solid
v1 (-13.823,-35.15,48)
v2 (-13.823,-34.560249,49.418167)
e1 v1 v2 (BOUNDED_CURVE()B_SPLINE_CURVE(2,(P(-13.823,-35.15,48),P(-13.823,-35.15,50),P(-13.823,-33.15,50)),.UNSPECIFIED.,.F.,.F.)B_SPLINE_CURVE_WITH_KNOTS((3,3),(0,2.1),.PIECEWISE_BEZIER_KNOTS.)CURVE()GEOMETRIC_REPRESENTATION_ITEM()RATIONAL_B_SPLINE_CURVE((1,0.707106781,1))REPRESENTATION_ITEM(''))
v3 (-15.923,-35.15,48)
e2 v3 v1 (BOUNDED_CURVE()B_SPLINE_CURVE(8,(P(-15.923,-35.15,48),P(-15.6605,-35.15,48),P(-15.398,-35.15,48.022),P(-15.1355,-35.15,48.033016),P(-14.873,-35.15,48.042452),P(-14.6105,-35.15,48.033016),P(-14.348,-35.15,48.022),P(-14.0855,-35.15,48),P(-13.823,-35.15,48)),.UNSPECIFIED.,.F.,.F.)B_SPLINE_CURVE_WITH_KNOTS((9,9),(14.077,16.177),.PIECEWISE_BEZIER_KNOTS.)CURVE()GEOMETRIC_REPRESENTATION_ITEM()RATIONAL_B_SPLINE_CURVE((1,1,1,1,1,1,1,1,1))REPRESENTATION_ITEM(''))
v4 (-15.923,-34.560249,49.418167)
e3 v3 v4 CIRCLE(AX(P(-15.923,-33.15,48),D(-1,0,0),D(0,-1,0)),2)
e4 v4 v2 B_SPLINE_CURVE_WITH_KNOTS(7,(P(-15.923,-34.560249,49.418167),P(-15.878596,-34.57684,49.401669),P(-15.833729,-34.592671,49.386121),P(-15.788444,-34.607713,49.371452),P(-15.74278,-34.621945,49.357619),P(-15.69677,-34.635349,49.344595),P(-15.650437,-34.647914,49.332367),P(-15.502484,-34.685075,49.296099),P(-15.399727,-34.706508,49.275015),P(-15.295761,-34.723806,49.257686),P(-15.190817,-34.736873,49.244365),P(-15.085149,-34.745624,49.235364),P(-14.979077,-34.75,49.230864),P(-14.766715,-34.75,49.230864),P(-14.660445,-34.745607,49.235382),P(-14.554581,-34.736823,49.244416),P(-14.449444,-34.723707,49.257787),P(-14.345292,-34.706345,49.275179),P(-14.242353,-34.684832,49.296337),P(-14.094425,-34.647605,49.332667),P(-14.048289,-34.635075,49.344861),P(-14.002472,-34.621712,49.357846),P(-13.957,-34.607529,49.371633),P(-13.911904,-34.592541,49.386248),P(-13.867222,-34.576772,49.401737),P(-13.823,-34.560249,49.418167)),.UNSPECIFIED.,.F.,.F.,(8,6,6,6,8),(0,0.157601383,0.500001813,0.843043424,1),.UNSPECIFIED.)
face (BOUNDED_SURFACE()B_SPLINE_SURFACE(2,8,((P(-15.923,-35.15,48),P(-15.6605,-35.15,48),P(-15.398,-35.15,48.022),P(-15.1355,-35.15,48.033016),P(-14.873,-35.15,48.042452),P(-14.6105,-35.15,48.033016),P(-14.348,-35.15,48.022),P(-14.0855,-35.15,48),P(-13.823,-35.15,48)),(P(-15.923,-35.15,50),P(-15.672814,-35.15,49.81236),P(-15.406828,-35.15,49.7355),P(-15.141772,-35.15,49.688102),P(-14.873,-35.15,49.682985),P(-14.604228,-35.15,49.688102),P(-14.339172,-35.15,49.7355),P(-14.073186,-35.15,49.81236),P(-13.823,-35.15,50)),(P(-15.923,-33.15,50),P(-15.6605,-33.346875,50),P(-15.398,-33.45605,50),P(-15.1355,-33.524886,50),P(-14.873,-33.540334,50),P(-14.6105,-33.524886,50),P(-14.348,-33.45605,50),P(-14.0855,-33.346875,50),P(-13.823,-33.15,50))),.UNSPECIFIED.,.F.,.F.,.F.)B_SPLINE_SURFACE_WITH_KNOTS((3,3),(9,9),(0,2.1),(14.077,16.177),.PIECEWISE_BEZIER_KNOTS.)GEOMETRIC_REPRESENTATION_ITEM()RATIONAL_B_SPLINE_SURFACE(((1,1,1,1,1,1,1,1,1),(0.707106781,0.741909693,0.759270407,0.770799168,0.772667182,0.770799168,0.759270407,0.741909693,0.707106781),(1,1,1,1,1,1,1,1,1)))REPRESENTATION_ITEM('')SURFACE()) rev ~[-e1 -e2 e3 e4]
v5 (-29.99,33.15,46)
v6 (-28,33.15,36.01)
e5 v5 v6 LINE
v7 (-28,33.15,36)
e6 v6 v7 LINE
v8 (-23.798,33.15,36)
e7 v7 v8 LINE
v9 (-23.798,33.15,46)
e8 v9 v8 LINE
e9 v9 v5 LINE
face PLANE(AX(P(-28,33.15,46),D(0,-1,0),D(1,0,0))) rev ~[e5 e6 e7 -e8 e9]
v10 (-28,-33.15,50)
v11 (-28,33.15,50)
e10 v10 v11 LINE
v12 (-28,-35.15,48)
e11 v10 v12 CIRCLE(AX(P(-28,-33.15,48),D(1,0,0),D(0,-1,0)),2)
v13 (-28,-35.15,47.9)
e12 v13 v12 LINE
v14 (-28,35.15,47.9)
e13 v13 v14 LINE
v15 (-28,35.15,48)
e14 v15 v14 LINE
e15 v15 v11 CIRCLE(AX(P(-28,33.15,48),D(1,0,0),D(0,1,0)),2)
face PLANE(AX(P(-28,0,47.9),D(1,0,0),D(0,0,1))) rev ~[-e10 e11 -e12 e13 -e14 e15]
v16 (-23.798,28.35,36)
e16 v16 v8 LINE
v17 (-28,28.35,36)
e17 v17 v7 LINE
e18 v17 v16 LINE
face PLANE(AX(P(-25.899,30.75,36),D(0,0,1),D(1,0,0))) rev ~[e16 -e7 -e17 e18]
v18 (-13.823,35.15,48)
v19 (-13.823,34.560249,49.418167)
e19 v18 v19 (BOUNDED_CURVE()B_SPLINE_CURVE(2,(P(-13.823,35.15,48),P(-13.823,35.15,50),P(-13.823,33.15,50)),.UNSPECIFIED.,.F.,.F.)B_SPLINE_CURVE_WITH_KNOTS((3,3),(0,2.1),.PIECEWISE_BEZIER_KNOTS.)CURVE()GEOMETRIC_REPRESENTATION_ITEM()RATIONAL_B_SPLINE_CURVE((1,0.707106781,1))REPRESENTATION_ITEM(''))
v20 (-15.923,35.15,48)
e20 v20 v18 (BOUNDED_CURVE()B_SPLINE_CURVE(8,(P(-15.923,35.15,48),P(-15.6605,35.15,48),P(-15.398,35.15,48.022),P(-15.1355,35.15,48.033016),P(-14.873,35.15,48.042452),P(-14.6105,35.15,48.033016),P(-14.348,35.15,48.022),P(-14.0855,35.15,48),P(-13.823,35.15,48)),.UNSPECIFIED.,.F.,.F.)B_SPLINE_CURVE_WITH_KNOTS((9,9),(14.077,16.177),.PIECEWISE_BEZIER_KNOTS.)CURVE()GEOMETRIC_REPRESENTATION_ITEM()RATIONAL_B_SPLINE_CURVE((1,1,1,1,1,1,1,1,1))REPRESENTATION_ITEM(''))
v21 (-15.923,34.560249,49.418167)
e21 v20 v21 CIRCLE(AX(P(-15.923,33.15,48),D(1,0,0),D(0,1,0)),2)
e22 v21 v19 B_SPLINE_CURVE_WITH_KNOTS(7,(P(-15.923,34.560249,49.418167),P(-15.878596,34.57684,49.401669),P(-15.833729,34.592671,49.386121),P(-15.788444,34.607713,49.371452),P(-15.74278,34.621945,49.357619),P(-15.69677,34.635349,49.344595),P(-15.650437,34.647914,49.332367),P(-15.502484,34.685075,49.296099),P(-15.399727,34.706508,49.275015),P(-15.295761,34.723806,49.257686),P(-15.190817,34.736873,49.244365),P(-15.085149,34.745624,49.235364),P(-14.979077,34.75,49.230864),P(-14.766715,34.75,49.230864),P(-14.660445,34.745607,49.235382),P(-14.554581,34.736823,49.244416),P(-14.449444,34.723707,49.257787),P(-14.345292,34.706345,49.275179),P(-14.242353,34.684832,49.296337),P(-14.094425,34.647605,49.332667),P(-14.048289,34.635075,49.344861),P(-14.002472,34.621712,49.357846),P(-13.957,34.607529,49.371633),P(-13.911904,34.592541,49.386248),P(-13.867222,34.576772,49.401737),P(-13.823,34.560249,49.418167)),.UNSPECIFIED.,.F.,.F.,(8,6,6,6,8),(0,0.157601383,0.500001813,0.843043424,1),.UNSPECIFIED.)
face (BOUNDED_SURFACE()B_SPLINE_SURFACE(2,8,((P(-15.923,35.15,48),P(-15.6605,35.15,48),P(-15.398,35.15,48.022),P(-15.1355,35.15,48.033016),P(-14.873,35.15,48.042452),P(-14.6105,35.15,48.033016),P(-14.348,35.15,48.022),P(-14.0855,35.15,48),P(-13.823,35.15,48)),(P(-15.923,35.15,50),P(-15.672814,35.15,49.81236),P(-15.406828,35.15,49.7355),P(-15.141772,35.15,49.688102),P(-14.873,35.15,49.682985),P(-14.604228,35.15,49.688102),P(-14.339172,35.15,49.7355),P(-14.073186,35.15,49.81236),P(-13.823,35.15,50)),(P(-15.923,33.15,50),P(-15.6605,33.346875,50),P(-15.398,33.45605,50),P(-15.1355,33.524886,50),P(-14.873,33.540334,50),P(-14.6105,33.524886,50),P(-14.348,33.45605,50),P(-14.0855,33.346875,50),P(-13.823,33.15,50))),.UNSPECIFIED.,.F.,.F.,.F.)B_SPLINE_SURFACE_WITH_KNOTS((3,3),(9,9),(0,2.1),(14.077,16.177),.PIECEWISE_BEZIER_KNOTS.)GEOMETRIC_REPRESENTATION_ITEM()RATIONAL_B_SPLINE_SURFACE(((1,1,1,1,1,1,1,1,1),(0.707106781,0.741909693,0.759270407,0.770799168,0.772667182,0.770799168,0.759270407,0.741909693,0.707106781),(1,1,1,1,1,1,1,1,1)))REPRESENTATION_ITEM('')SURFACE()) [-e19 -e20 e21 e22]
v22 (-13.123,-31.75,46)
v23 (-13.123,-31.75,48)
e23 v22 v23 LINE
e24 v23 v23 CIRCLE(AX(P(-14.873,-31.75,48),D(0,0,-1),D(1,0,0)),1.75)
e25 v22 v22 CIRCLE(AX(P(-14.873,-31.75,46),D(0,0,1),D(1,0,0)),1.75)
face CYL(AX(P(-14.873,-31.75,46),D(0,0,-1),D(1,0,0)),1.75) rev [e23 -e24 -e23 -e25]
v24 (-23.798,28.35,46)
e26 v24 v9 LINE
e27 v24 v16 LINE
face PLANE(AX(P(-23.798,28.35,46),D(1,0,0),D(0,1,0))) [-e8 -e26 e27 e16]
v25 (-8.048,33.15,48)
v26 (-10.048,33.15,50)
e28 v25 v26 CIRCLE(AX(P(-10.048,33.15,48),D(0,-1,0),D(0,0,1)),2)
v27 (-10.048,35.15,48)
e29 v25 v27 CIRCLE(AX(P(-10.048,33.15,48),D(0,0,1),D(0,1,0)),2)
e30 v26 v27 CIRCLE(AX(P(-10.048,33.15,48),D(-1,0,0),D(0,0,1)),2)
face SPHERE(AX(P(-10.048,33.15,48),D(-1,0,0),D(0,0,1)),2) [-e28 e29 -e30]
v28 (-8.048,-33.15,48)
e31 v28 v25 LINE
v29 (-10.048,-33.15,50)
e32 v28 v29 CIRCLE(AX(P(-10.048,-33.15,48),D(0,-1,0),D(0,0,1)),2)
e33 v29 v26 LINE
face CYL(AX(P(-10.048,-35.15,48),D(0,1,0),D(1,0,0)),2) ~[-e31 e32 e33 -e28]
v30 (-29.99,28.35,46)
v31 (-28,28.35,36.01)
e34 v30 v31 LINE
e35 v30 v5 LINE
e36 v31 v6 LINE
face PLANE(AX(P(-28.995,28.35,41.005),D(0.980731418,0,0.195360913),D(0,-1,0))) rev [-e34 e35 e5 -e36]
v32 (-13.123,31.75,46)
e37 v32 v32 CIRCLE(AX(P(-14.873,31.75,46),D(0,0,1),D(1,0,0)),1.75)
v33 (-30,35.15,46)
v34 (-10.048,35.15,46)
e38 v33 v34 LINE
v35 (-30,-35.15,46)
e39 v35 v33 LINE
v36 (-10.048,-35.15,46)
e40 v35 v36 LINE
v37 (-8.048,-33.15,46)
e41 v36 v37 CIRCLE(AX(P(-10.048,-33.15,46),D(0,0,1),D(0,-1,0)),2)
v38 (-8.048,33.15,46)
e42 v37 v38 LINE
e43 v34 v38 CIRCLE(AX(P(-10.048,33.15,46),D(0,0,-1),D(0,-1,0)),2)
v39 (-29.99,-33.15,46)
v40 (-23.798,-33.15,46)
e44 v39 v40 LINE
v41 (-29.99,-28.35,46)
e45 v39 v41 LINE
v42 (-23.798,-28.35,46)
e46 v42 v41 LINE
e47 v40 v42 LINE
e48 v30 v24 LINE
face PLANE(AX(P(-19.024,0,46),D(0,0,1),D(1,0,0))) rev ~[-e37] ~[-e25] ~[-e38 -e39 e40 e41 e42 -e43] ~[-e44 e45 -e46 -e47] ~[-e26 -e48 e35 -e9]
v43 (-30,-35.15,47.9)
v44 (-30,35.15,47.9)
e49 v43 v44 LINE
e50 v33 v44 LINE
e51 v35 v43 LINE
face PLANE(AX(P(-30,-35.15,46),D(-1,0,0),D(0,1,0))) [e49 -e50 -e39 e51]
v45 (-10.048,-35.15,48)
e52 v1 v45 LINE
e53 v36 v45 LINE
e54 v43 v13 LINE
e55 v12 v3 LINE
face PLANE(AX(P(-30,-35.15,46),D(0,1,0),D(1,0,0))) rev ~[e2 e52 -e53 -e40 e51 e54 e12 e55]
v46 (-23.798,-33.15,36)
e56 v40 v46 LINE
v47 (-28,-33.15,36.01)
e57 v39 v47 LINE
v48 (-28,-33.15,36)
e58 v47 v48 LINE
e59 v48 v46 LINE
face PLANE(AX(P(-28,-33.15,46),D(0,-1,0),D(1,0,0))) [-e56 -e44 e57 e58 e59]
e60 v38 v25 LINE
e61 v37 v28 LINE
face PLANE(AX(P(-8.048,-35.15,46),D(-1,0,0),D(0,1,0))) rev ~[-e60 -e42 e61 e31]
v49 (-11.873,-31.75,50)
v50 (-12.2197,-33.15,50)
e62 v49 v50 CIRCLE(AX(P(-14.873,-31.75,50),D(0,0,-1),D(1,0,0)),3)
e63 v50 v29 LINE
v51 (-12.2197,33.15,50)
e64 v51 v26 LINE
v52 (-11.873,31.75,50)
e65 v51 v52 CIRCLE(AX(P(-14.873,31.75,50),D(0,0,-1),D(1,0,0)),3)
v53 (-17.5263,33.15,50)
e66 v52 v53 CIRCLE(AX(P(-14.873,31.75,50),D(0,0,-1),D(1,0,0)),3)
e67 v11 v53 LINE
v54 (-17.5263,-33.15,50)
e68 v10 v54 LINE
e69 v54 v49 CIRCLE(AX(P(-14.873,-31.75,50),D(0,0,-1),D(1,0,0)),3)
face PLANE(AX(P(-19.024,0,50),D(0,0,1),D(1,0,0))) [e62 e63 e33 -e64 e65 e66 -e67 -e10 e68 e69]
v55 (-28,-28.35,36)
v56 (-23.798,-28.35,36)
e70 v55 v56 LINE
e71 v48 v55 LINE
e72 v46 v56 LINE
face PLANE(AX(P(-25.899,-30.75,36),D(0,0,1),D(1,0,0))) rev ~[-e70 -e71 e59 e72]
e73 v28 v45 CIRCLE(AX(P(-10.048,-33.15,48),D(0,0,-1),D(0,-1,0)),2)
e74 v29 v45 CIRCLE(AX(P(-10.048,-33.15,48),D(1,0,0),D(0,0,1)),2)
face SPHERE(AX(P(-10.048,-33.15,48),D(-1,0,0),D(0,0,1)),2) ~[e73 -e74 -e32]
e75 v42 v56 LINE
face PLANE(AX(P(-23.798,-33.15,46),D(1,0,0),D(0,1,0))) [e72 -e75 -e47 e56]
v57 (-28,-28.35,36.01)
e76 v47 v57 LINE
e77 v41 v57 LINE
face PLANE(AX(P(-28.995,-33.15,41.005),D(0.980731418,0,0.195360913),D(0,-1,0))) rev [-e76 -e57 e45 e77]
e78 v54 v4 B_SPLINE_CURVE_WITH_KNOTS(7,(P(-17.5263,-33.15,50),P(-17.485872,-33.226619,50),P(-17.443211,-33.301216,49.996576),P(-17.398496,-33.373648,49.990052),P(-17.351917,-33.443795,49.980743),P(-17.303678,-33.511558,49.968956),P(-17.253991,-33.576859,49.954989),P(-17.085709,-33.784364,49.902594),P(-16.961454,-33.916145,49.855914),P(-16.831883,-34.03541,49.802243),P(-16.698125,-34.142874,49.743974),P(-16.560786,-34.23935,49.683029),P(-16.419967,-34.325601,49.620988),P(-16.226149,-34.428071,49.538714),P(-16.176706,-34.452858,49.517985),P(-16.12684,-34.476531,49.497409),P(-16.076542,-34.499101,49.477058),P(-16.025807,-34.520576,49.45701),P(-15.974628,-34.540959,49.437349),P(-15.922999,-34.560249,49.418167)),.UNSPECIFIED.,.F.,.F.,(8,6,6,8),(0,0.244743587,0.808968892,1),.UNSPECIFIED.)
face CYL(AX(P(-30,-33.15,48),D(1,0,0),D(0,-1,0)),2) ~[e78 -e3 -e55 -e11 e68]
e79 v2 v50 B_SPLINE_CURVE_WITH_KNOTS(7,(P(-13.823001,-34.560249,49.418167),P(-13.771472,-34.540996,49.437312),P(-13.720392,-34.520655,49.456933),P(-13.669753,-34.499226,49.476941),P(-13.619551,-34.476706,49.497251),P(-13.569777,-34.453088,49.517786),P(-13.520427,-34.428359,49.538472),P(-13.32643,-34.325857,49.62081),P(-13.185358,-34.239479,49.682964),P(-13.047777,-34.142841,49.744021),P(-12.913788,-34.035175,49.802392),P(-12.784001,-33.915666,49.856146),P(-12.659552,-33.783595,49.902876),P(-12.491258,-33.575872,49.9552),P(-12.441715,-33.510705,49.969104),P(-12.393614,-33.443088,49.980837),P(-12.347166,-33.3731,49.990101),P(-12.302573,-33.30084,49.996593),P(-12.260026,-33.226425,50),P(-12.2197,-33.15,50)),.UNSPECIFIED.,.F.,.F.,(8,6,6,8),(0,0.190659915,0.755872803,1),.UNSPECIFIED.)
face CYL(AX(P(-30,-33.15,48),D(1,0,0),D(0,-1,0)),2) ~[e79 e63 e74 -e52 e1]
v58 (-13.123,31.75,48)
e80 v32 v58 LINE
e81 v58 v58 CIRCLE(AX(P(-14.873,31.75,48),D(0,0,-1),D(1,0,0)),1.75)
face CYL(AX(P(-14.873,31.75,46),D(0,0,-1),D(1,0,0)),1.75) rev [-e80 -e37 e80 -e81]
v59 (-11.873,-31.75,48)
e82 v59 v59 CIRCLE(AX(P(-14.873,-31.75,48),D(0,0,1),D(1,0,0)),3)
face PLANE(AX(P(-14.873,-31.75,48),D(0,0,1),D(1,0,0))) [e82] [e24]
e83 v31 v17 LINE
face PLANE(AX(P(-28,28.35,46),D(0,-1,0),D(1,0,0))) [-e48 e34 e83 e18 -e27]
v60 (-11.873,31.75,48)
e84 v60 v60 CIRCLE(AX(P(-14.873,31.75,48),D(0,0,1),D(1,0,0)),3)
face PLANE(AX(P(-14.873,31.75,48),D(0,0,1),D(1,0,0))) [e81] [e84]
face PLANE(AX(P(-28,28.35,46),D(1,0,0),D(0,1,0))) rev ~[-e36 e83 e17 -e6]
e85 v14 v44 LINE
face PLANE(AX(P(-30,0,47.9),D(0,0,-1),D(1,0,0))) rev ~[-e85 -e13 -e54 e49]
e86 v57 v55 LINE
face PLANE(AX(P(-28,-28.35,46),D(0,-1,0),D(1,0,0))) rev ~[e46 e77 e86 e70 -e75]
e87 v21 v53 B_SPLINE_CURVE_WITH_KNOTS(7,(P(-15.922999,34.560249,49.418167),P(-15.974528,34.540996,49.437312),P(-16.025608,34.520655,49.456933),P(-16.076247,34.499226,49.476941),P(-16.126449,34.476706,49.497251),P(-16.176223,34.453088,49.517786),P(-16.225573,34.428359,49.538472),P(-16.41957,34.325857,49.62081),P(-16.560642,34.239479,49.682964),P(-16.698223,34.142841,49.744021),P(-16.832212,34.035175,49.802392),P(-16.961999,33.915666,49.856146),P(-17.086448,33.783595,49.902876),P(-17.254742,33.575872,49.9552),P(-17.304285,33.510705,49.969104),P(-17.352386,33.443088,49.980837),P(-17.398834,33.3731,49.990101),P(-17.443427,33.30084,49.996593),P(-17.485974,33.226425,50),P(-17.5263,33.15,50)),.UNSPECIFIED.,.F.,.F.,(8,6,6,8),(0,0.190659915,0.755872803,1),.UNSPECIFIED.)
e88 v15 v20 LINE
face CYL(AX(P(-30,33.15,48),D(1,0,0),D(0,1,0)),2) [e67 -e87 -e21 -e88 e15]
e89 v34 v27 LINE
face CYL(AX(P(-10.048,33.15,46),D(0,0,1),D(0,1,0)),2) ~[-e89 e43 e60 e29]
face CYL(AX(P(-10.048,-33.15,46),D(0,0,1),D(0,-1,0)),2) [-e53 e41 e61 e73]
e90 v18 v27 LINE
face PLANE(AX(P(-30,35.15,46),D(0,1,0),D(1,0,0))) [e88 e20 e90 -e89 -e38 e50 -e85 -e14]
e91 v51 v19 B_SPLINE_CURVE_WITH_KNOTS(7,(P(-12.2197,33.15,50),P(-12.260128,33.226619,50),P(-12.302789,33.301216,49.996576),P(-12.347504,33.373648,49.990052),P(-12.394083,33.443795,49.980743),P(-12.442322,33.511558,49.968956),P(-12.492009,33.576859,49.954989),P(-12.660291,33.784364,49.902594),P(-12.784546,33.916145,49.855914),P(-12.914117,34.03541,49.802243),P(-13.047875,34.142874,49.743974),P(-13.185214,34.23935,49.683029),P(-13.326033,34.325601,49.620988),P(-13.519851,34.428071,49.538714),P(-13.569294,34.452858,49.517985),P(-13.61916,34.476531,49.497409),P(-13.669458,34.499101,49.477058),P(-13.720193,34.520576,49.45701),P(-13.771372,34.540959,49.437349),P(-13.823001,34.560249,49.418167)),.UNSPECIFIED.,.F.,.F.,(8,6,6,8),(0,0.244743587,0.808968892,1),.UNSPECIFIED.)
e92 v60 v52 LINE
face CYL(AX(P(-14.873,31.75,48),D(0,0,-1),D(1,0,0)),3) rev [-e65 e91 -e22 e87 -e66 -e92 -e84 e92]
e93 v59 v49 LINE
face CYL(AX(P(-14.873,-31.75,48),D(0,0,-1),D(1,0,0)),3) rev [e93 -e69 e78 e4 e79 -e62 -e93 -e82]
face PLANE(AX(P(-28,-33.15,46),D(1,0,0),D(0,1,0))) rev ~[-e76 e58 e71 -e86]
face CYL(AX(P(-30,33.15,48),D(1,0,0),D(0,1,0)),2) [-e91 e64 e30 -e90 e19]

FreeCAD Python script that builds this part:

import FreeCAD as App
import Part
import Sketcher

V = App.Vector


def edges_at(feature, points):
    """Names of the edges that pass closest to the given points."""
    edges = feature.Shape.Edges
    near = lambda p: min(range(len(edges)), key=lambda i: edges[i].distToShape(Part.Vertex(*p))[0])
    return sorted({f"Edge{near(p) + 1}" for p in points})


def add_polygon(sketch, points):
    """Adds a closed chain of lines whose ends are joined by coincident constraints."""
    first, n = sketch.GeometryCount, len(points)
    for a, b in zip(points, points[1:] + points[:1]):
        sketch.addGeometry(Part.LineSegment(App.Vector(*a, 0), App.Vector(*b, 0)), False)
    for i in range(n):
        sketch.addConstraint(Sketcher.Constraint("Coincident", first + i, 2, first + (i + 1) % n, 1))

doc = App.newDocument("Part")
body = doc.addObject("PartDesign::Body", "Body")

# Sketch on XY plane
sketch1 = doc.addObject("Sketcher::SketchObject", "Sketch")
body.addObject(sketch1)
sketch1.AttachmentSupport = (doc.XY_Plane, [""])
sketch1.MapMode = "FlatFace"
add_polygon(sketch1, [(-30, 35.15), (-30, -35.15), (-8.048, -35.15), (-8.048, 35.15)])  # lines 0-3
sketch1.addGeometry(Part.Circle(V(-14.873, -31.75, 0), V(0, 0, 1), 1.75), False)  # 4
sketch1.addGeometry(Part.Circle(V(-14.873, 31.75, 0), V(0, 0, 1), 1.75), False)  # 5
sketch1.addConstraint([
    Sketcher.Constraint("Vertical", 0),
    Sketcher.Constraint("Horizontal", 1),
    Sketcher.Constraint("Vertical", 2),
    Sketcher.Constraint("Horizontal", 3),
    Sketcher.Constraint("Equal", 4, 5),
    Sketcher.Constraint("Symmetric", 4, 3, 5, 3, -1),
    Sketcher.Constraint("Diameter", 4, 3.5),
    Sketcher.Constraint("DistanceY", 0, 2, 0, 1, 70.3),
    Sketcher.Constraint("DistanceX", 0, 2, -1, 1, 30.0),
    Sketcher.Constraint("DistanceY", 4, 3, 5, 3, 63.5),
    Sketcher.Constraint("DistanceY", 0, 2, 4, 3, 3.4),
    Sketcher.Constraint("DistanceX", 1, 1, 1, 2, 21.952),
    Sketcher.Constraint("DistanceX", 4, 3, -1, 1, 14.873),
])
pad1 = doc.addObject("PartDesign::Pad", "Pad")
body.addObject(pad1)
pad1.Profile = sketch1
pad1.Length = 4
doc.recompute()

fillet = doc.addObject("PartDesign::Fillet", "Fillet")
body.addObject(fillet)
fillet.Base = (pad1, edges_at(pad1, [
    (-19.024, 35.15, 4),
    (-19.024, -35.15, 4),
    (-8.048, 0, 4),
    (-8.048, -35.15, 2),
    (-8.048, 35.15, 2),
]))
fillet.Radius = 2

# Sketch on XZ plane
sketch2 = doc.addObject("Sketcher::SketchObject", "Sketch001")
body.addObject(sketch2)
sketch2.AttachmentSupport = (doc.XZ_Plane, [""])
sketch2.MapMode = "FlatFace"
add_polygon(sketch2, [(-30, 4), (-30, 1.9), (-28, 1.9), (-28, 4)])  # lines 0-3
sketch2.addConstraint([
    Sketcher.Constraint("Vertical", 0),
    Sketcher.Constraint("Horizontal", 1),
    Sketcher.Constraint("Vertical", 2),
    Sketcher.Constraint("Horizontal", 3),
    Sketcher.Constraint("DistanceX", 1, 1, 1, 2, 2.0),
    Sketcher.Constraint("DistanceY", 0, 2, 0, 1, 2.1),
    Sketcher.Constraint("DistanceX", 0, 2, -1, 1, 30.0),
    Sketcher.Constraint("DistanceY", -1, 1, 2, 2, 4.0),
])
pocket1 = doc.addObject("PartDesign::Pocket", "Pocket")
body.addObject(pocket1)
pocket1.Profile = sketch2
pocket1.Type = "ThroughAll"
pocket1.Midplane = True

# Sketch on XY plane
sketch3 = doc.addObject("Sketcher::SketchObject", "Sketch002")
body.addObject(sketch3)
sketch3.AttachmentSupport = (doc.XY_Plane, [""])
sketch3.MapMode = "FlatFace"
sketch3.AttachmentOffset = App.Placement(V(0, 0, 2), App.Rotation())
sketch3.addGeometry([
    Part.Circle(V(-14.873, -31.75, 0), V(0, 0, 1), 3),
    Part.Circle(V(-14.873, 31.75, 0), V(0, 0, 1), 3),
], False)
sketch3.addConstraint([
    Sketcher.Constraint("Equal", 0, 1),
    Sketcher.Constraint("Symmetric", 0, 3, 1, 3, -1),
    Sketcher.Constraint("Diameter", 0, 6.0),
    Sketcher.Constraint("DistanceY", 0, 3, 1, 3, 63.5),
    Sketcher.Constraint("DistanceX", 0, 3, -1, 1, 14.873),
])
pocket2 = doc.addObject("PartDesign::Pocket", "Pocket001")
body.addObject(pocket2)
pocket2.Profile = sketch3
pocket2.Type = "ThroughAll"
pocket2.Reversed = True

# Sketch on XY plane
sketch4 = doc.addObject("Sketcher::SketchObject", "Sketch003")
body.addObject(sketch4)
sketch4.AttachmentSupport = (doc.XY_Plane, [""])
sketch4.MapMode = "FlatFace"
add_polygon(sketch4, [(-28, 33.15), (-28, 28.35), (-23.798, 28.35), (-23.798, 33.15)])  # lines 0-3
add_polygon(sketch4, [(-28, -28.35), (-28, -33.15), (-23.798, -33.15), (-23.798, -28.35)])  # lines 4-7
sketch4.addConstraint([
    Sketcher.Constraint("Vertical", 0),
    Sketcher.Constraint("Horizontal", 1),
    Sketcher.Constraint("Vertical", 2),
    Sketcher.Constraint("Horizontal", 3),
    Sketcher.Constraint("Vertical", 4),
    Sketcher.Constraint("Horizontal", 5),
    Sketcher.Constraint("Vertical", 6),
    Sketcher.Constraint("Horizontal", 7),
    Sketcher.Constraint("Symmetric", 3, 2, 4, 2, -1),
    Sketcher.Constraint("Symmetric", 1, 2, 6, 2, -1),
    Sketcher.Constraint("DistanceY", 0, 2, 0, 1, 4.8),
    Sketcher.Constraint("DistanceX", 0, 2, -1, 1, 28.0),
    Sketcher.Constraint("DistanceY", 4, 2, 0, 2, 61.5),
    Sketcher.Constraint("DistanceX", 1, 1, 1, 2, 4.202),
])
pad2 = doc.addObject("PartDesign::Pad", "Pad001")
body.addObject(pad2)
pad2.Profile = sketch4
pad2.Length = 10
pad2.Reversed = True
doc.recompute()

chamfer = doc.addObject("PartDesign::Chamfer", "Chamfer")
body.addObject(chamfer)
chamfer.Base = (pad2, edges_at(pad2, [(-28, 30.75, 0), (-28, -30.75, 0)]))
chamfer.ChamferType = "Two distances"
chamfer.Size = 1.99
chamfer.Size2 = 9.99
body2 = doc.addObject("PartDesign::Body", "Body001")
doc.recompute()

body.Placement = App.Placement(V(0, 0, 46), App.Rotation(V(0, 0, 1), 0))
boolean = doc.addObject("PartDesign::Boolean", "Boolean")
body2.addObject(boolean)
boolean.Type = "Fuse"
boolean.addObjects([body])

doc.recompute()
